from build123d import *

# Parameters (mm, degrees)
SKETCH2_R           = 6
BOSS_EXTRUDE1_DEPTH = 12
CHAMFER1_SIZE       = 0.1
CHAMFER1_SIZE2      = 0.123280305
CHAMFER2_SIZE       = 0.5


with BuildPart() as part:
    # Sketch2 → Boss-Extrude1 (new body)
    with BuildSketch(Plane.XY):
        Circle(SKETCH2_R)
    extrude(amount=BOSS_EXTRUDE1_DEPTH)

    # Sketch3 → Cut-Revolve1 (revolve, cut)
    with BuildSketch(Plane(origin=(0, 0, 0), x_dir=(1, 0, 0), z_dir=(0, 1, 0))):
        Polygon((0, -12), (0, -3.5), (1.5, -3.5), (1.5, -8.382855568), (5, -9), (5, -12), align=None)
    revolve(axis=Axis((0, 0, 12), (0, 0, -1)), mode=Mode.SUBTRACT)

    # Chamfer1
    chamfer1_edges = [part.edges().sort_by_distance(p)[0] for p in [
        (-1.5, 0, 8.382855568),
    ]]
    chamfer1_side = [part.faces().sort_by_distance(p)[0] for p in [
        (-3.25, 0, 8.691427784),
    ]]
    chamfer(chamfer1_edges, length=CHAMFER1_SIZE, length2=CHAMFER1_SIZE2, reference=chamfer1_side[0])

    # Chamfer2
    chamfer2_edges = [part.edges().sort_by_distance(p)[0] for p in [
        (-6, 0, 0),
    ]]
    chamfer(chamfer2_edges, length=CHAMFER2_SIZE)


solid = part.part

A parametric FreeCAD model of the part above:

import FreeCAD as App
import Part
import Sketcher

V = App.Vector
Q = App.Units.Quantity


def edges_at(feature, points):
    """Names of the edges that pass closest to the given points."""
    edges = feature.Shape.Edges
    near = lambda p: min(range(len(edges)), key=lambda i: edges[i].distToShape(Part.Vertex(*p))[0])
    return sorted({f"Edge{near(p) + 1}" for p in points})


def add_polygon(sketch, points):
    """Adds a closed chain of lines whose ends are joined by coincident constraints."""
    first, n = sketch.GeometryCount, len(points)
    for a, b in zip(points, points[1:] + points[:1]):
        sketch.addGeometry(Part.LineSegment(App.Vector(*a, 0), App.Vector(*b, 0)), False)
    for i in range(n):
        sketch.addConstraint(Sketcher.Constraint("Coincident", first + i, 2, first + (i + 1) % n, 1))

doc = App.newDocument("Part")
body = doc.addObject("PartDesign::Body", "Body")

sketch1 = body.newObject("Sketcher::SketchObject", "Sketch")
sketch1.AttachmentSupport = (doc.getObject("XY_Plane"), [""])
sketch1.MapMode = "FlatFace"
sketch1.addGeometry(Part.Circle(V(0, 0, 0), V(0, 0, 1), 6), False)
sketch1.addConstraint([
    Sketcher.Constraint("Coincident", 0, 3, -1, 1),
    Sketcher.Constraint("Diameter", 0, Q("12 mm")),
])
pad1 = body.newObject("PartDesign::Pad", "Pad")
pad1.Profile = sketch1
pad1.Length = 12

sketch2 = body.newObject("Sketcher::SketchObject", "Sketch001")
sketch2.AttachmentSupport = (doc.getObject("XZ_Plane"), [""])
sketch2.MapMode = "FlatFace"
add_polygon(sketch2, [(0, 3.5), (0, 12), (5, 12), (5, 9), (1.5, 8.382856), (1.5, 3.5)])
sketch2.addConstraint([
    Sketcher.Constraint("Vertical", 0),
    Sketcher.Constraint("Horizontal", 1),
    Sketcher.Constraint("Vertical", 2),
    Sketcher.Constraint("Vertical", 4),
    Sketcher.Constraint("Horizontal", 5),
    Sketcher.Constraint("PointOnObject", 0, 2, -2),
    Sketcher.Constraint("DistanceX", 1, 1, 1, 2, Q("5 mm")),
    Sketcher.Constraint("DistanceY", 2, 2, 2, 1, Q("3 mm")),
    Sketcher.Constraint("Angle", 3, Q("-170 deg")),
    Sketcher.Constraint("DistanceX", 5, 2, 5, 1, Q("1.5 mm")),
    Sketcher.Constraint("DistanceY", 0, 1, 0, 2, Q("8.5 mm")),
    Sketcher.Constraint("DistanceY", -1, 1, 0, 2, Q("12 mm")),
])
groove = body.newObject("PartDesign::Groove", "Groove")
groove.Profile = sketch2
groove.ReferenceAxis = (sketch2, ["V_Axis"])
groove.Angle = 360
doc.recompute()

chamfer = body.newObject("PartDesign::Chamfer", "Chamfer")
chamfer.Base = (groove, edges_at(groove, [(-1.5, 0, 8.383)]))
chamfer.ChamferType = "Two distances"
chamfer.Size = 0.1
chamfer.Size2 = 0.12328
doc.recompute()

chamfer2 = body.newObject("PartDesign::Chamfer", "Chamfer001")
chamfer2.Base = (chamfer, edges_at(chamfer, [(-6, 0, 0)]))
chamfer2.Size = 0.5

doc.recompute()
